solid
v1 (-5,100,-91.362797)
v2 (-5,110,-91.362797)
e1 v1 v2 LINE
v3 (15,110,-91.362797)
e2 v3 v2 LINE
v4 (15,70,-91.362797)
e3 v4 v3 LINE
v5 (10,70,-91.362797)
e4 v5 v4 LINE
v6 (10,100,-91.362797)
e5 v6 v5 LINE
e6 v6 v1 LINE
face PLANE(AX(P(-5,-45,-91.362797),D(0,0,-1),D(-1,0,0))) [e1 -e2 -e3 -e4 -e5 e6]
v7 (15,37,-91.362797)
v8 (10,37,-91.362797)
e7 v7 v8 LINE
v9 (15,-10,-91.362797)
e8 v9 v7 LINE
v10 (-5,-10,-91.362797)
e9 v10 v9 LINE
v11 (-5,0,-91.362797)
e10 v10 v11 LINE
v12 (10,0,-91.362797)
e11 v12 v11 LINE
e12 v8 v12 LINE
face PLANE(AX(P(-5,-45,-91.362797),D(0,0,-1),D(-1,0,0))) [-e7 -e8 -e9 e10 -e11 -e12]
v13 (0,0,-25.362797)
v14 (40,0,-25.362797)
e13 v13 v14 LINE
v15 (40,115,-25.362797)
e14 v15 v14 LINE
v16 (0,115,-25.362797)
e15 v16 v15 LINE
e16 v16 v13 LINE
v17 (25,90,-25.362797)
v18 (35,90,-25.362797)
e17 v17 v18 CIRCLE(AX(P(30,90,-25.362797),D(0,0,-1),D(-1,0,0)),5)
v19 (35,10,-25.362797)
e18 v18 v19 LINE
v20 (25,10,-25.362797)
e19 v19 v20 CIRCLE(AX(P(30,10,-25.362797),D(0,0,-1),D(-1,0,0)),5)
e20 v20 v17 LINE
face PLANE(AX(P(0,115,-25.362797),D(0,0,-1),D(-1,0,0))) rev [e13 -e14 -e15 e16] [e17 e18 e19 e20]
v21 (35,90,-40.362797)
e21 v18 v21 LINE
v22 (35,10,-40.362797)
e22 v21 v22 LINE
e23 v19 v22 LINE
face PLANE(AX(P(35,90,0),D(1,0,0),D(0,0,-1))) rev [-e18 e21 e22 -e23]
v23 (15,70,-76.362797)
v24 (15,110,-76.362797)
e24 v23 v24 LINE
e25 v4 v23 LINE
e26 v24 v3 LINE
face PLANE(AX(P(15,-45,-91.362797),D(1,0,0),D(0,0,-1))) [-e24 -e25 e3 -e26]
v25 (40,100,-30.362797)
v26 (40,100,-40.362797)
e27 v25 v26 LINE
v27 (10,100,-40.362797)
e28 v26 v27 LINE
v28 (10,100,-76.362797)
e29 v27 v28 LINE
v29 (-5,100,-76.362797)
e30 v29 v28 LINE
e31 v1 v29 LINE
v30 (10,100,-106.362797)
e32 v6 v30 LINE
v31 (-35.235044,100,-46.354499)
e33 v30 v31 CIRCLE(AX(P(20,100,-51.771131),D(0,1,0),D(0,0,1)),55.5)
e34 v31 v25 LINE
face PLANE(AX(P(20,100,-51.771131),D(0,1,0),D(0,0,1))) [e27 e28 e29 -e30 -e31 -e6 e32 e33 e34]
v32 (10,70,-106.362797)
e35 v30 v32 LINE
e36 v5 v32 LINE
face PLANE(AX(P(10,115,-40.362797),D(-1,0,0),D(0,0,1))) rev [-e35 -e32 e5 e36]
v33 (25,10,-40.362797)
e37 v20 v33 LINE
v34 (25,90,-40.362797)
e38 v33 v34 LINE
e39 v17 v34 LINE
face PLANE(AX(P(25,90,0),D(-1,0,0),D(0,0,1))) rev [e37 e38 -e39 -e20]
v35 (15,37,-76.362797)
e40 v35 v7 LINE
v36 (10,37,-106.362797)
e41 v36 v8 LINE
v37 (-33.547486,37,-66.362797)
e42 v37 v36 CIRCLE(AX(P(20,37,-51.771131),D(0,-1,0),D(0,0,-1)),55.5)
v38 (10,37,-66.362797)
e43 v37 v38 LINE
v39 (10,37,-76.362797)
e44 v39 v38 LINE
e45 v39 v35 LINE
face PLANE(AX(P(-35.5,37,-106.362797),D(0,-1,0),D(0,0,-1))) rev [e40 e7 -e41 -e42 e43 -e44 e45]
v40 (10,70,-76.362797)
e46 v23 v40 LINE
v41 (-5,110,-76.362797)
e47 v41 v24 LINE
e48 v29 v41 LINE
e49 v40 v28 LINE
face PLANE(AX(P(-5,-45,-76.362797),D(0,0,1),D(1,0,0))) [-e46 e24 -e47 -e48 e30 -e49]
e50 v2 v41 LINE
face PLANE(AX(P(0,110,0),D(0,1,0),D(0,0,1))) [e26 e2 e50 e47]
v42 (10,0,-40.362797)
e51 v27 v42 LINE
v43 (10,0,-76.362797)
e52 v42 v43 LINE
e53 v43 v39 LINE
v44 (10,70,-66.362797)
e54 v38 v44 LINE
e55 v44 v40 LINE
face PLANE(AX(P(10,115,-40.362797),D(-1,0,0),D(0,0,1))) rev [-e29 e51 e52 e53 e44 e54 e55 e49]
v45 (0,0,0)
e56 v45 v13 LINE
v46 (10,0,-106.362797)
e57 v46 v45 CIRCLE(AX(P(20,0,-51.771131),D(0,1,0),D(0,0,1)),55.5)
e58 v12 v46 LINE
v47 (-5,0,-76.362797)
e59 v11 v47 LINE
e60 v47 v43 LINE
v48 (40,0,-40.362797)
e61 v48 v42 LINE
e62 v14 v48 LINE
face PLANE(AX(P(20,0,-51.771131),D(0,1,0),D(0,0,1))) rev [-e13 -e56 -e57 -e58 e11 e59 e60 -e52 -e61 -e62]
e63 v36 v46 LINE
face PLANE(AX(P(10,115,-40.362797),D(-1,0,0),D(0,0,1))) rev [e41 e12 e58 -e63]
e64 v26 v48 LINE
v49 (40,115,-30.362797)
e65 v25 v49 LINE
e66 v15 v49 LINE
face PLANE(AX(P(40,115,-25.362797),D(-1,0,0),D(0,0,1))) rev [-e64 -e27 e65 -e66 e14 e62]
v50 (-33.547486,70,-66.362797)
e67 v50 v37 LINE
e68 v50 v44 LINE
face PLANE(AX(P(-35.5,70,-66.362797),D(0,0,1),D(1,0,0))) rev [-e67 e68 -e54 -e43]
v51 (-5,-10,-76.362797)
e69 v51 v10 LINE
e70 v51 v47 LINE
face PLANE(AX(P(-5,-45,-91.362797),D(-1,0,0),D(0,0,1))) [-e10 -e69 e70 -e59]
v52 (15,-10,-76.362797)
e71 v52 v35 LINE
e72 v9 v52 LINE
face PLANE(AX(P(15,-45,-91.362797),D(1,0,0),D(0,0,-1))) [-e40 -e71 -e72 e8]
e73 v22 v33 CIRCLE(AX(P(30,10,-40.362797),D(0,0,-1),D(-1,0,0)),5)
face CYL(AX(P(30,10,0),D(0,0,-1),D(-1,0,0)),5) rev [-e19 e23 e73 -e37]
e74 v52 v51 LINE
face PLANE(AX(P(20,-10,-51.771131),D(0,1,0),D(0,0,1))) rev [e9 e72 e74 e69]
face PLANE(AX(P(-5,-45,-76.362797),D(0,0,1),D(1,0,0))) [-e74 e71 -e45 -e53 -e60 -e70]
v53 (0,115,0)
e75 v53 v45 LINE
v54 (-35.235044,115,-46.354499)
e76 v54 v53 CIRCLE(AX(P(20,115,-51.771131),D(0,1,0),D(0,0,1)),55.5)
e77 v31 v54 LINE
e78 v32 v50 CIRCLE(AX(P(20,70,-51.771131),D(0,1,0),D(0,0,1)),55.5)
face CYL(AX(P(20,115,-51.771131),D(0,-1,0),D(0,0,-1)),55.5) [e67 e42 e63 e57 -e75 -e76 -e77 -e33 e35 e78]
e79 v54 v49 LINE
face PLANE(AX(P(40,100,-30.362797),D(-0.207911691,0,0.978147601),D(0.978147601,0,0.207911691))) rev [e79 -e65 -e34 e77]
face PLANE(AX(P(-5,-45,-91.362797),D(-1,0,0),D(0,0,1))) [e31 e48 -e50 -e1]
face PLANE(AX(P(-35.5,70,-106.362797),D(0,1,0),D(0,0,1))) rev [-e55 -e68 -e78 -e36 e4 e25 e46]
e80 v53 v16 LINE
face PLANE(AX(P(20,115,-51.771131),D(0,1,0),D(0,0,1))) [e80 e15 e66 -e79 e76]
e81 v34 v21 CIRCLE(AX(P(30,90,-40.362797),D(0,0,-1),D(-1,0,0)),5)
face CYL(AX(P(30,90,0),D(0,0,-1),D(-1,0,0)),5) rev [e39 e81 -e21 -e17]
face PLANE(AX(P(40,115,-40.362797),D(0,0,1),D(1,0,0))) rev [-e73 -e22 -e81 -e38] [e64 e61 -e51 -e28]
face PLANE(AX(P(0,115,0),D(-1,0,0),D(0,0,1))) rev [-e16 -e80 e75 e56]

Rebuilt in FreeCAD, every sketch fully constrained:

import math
import FreeCAD as App
import Part
import Sketcher

V = App.Vector
Q = App.Units.Quantity

doc = App.newDocument("Part")
body = doc.addObject("PartDesign::Body", "Body")

# Sketch on XZ plane
sketch1 = body.newObject("Sketcher::SketchObject", "Sketch")
sketch1.AttachmentSupport = (doc.getObject("XZ_Plane"), [""])
sketch1.MapMode = "FlatFace"
sketch1.addGeometry([
    Part.LineSegment(V(0, 0, 0), V(0, -25, 0)),  # 0
    Part.LineSegment(V(0, -25, 0), V(40, -25, 0)),  # 1
    Part.LineSegment(V(40, -25, 0), V(40, -40, 0)),  # 2
    Part.LineSegment(V(40, -40, 0), V(10, -40, 0)),  # 3
    Part.LineSegment(V(10, -40, 0), V(10, -106, 0)),  # 4
    Part.ArcOfCircle(Part.Circle(V(20, -52, 0), V(0, 0, 1), 56), math.radians(111), math.radians(260)),  # 5
], False)
sketch1.addConstraint([
    Sketcher.Constraint("Coincident", 0, 2, 1, 1),
    Sketcher.Constraint("Coincident", 1, 2, 2, 1),
    Sketcher.Constraint("Coincident", 2, 2, 3, 1),
    Sketcher.Constraint("Coincident", 3, 2, 4, 1),
    Sketcher.Constraint("Coincident", 4, 2, 5, 2),
    Sketcher.Constraint("Coincident", 5, 1, 0, 1),
    Sketcher.Constraint("Vertical", 0),
    Sketcher.Constraint("Horizontal", 1),
    Sketcher.Constraint("Vertical", 2),
    Sketcher.Constraint("Horizontal", 3),
    Sketcher.Constraint("Vertical", 4),
    Sketcher.Constraint("Coincident", 5, 1, -1, 1),
    Sketcher.Constraint("Radius", 5, 55.5),
    Sketcher.Constraint("DistanceX", 1, 1, 1, 2, 40.0),
    Sketcher.Constraint("DistanceX", 3, 2, 3, 1, 30.0),
    Sketcher.Constraint("DistanceY", 2, 2, 2, 1, 15.0),
    Sketcher.Constraint("DistanceY", 4, 2, 4, 1, 66.0),
    Sketcher.Constraint("DistanceX", -1, 1, 5, 3, 20.0),
])
pad1 = body.newObject("PartDesign::Pad", "Pad")
pad1.Profile = sketch1
pad1.Length = 115
pad1.Reversed = True

# Sketch on XZ plane
sketch2 = body.newObject("Sketcher::SketchObject", "Sketch001")
sketch2.AttachmentSupport = (doc.getObject("XZ_Plane"), [""])
sketch2.MapMode = "FlatFace"
sketch2.AttachmentOffset = App.Placement(V(0, 0, -100), App.Rotation())
sketch2.addGeometry([
    Part.LineSegment(V(-35, -46, 0), V(40, -30, 0)),  # 0
    Part.LineSegment(V(40, -30, 0), V(40, -40, 0)),  # 1
    Part.LineSegment(V(40, -40, 0), V(10, -40, 0)),  # 2
    Part.LineSegment(V(10, -40, 0), V(10, -106, 0)),  # 3
    Part.ArcOfCircle(Part.Circle(V(20, -52, 0), V(0, 0, 1), 55), math.radians(174), math.radians(260)),  # 4
], False)
sketch2.addConstraint([
    Sketcher.Constraint("Coincident", 0, 2, 1, 1),
    Sketcher.Constraint("Coincident", 1, 2, 2, 1),
    Sketcher.Constraint("Coincident", 2, 2, 3, 1),
    Sketcher.Constraint("Coincident", 3, 2, 4, 2),
    Sketcher.Constraint("Coincident", 4, 1, 0, 1),
    Sketcher.Constraint("Vertical", 1),
    Sketcher.Constraint("Horizontal", 2),
    Sketcher.Constraint("Vertical", 3),
    Sketcher.Constraint("Radius", 4, 55.5),
    Sketcher.Constraint("DistanceX", 2, 2, 2, 1, 30.0),
    Sketcher.Constraint("DistanceY", 1, 2, 1, 1, 10.0),
    Sketcher.Constraint("DistanceY", 3, 2, 3, 1, 66.0),
    Sketcher.Constraint("Angle", 0, Q("12 deg")),
    Sketcher.Constraint("DistanceX", -1, 1, 4, 3, 20.0),
    Sketcher.Constraint("DistanceX", -1, 1, 0, 2, 40.0),
    Sketcher.Constraint("DistanceY", 4, 1, -1, 1, 46.354499),
])
pocket1 = body.newObject("PartDesign::Pocket", "Pocket")
pocket1.Profile = sketch2
pocket1.Length = 15

# Sketch on XZ plane
sketch3 = body.newObject("Sketcher::SketchObject", "Sketch002")
sketch3.AttachmentSupport = (doc.getObject("XZ_Plane"), [""])
sketch3.MapMode = "FlatFace"
sketch3.AttachmentOffset = App.Placement(V(0, 0, 10), App.Rotation())
sketch3.addGeometry([
    Part.LineSegment(V(-5, -91, 0), V(-5, -76, 0)),
    Part.LineSegment(V(-5, -76, 0), V(15, -76, 0)),
    Part.LineSegment(V(15, -76, 0), V(15, -91, 0)),
    Part.LineSegment(V(15, -91, 0), V(-5, -91, 0)),
], False)
sketch3.addConstraint([
    Sketcher.Constraint("Coincident", 0, 2, 1, 1),
    Sketcher.Constraint("Coincident", 1, 2, 2, 1),
    Sketcher.Constraint("Coincident", 2, 2, 3, 1),
    Sketcher.Constraint("Coincident", 3, 2, 0, 1),
    Sketcher.Constraint("Vertical", 0),
    Sketcher.Constraint("Horizontal", 1),
    Sketcher.Constraint("Vertical", 2),
    Sketcher.Constraint("Horizontal", 3),
    Sketcher.Constraint("DistanceX", 1, 1, 1, 2, 20.0),
    Sketcher.Constraint("DistanceY", 0, 1, 0, 2, 15.0),
    Sketcher.Constraint("DistanceX", 0, 2, -1, 1, 5.0),
    Sketcher.Constraint("DistanceY", 0, 2, -1, 1, 76.362797),
])
pad2 = body.newObject("PartDesign::Pad", "Pad001")
pad2.Profile = sketch3
pad2.Length = 120
pad2.Reversed = True

# Sketch on YZ plane
sketch4 = body.newObject("Sketcher::SketchObject", "Sketch003")
sketch4.AttachmentSupport = (doc.getObject("YZ_Plane"), [""])
sketch4.MapMode = "FlatFace"
sketch4.AttachmentOffset = App.Placement(V(0, 0, 15), App.Rotation())
sketch4.addGeometry([
    Part.LineSegment(V(70, -66, 0), V(37, -66, 0)),
    Part.LineSegment(V(37, -66, 0), V(37, -106, 0)),
    Part.LineSegment(V(37, -106, 0), V(70, -106, 0)),
    Part.LineSegment(V(70, -106, 0), V(70, -66, 0)),
], False)
sketch4.addConstraint([
    Sketcher.Constraint("Coincident", 0, 2, 1, 1),
    Sketcher.Constraint("Coincident", 1, 2, 2, 1),
    Sketcher.Constraint("Coincident", 2, 2, 3, 1),
    Sketcher.Constraint("Coincident", 3, 2, 0, 1),
    Sketcher.Constraint("Horizontal", 0),
    Sketcher.Constraint("Vertical", 1),
    Sketcher.Constraint("Horizontal", 2),
    Sketcher.Constraint("Vertical", 3),
    Sketcher.Constraint("DistanceX", 0, 2, 0, 1, 33.0),
    Sketcher.Constraint("DistanceY", 1, 2, 1, 1, 40.0),
    Sketcher.Constraint("DistanceX", -1, 1, 0, 2, 37.0),
    Sketcher.Constraint("DistanceY", 0, 2, -1, 1, 66.362797),
])
pocket2 = body.newObject("PartDesign::Pocket", "Pocket001")
pocket2.Profile = sketch4
pocket2.Type = "ThroughAll"

# Sketch on XY plane
sketch5 = body.newObject("Sketcher::SketchObject", "Sketch004")
sketch5.AttachmentSupport = (doc.getObject("XY_Plane"), [""])
sketch5.MapMode = "FlatFace"
sketch5.AttachmentOffset = App.Placement(V(0, 0, -40.362797), App.Rotation())
sketch5.addGeometry([
    Part.LineSegment(V(25, 10, 0), V(25, 90, 0)),
    Part.ArcOfCircle(Part.Circle(V(30, 90, 0), V(0, 0, 1), 5), math.radians(0), math.radians(180)),
    Part.LineSegment(V(35, 90, 0), V(35, 10, 0)),
    Part.ArcOfCircle(Part.Circle(V(30, 10, 0), V(0, 0, 1), 5), math.radians(180), math.radians(360)),
], False)
sketch5.addConstraint([
    Sketcher.Constraint("Tangent", 0, 2, 1, 2),
    Sketcher.Constraint("Tangent", 1, 1, 2, 1),
    Sketcher.Constraint("Tangent", 2, 2, 3, 2),
    Sketcher.Constraint("Tangent", 3, 1, 0, 1),
    Sketcher.Constraint("Vertical", 0),
    Sketcher.Constraint("Vertical", 2),
    Sketcher.Constraint("Radius", 1, 5.0),
    Sketcher.Constraint("DistanceY", 0, 1, 0, 2, 80.0),
    Sketcher.Constraint("DistanceX", -1, 1, 1, 3, 30.0),
    Sketcher.Constraint("DistanceY", -1, 1, 1, 3, 90.0),
])
pocket3 = body.newObject("PartDesign::Pocket", "Pocket002")
pocket3.Profile = sketch5
pocket3.Type = "ThroughAll"
pocket3.Reversed = True

doc.recompute()
